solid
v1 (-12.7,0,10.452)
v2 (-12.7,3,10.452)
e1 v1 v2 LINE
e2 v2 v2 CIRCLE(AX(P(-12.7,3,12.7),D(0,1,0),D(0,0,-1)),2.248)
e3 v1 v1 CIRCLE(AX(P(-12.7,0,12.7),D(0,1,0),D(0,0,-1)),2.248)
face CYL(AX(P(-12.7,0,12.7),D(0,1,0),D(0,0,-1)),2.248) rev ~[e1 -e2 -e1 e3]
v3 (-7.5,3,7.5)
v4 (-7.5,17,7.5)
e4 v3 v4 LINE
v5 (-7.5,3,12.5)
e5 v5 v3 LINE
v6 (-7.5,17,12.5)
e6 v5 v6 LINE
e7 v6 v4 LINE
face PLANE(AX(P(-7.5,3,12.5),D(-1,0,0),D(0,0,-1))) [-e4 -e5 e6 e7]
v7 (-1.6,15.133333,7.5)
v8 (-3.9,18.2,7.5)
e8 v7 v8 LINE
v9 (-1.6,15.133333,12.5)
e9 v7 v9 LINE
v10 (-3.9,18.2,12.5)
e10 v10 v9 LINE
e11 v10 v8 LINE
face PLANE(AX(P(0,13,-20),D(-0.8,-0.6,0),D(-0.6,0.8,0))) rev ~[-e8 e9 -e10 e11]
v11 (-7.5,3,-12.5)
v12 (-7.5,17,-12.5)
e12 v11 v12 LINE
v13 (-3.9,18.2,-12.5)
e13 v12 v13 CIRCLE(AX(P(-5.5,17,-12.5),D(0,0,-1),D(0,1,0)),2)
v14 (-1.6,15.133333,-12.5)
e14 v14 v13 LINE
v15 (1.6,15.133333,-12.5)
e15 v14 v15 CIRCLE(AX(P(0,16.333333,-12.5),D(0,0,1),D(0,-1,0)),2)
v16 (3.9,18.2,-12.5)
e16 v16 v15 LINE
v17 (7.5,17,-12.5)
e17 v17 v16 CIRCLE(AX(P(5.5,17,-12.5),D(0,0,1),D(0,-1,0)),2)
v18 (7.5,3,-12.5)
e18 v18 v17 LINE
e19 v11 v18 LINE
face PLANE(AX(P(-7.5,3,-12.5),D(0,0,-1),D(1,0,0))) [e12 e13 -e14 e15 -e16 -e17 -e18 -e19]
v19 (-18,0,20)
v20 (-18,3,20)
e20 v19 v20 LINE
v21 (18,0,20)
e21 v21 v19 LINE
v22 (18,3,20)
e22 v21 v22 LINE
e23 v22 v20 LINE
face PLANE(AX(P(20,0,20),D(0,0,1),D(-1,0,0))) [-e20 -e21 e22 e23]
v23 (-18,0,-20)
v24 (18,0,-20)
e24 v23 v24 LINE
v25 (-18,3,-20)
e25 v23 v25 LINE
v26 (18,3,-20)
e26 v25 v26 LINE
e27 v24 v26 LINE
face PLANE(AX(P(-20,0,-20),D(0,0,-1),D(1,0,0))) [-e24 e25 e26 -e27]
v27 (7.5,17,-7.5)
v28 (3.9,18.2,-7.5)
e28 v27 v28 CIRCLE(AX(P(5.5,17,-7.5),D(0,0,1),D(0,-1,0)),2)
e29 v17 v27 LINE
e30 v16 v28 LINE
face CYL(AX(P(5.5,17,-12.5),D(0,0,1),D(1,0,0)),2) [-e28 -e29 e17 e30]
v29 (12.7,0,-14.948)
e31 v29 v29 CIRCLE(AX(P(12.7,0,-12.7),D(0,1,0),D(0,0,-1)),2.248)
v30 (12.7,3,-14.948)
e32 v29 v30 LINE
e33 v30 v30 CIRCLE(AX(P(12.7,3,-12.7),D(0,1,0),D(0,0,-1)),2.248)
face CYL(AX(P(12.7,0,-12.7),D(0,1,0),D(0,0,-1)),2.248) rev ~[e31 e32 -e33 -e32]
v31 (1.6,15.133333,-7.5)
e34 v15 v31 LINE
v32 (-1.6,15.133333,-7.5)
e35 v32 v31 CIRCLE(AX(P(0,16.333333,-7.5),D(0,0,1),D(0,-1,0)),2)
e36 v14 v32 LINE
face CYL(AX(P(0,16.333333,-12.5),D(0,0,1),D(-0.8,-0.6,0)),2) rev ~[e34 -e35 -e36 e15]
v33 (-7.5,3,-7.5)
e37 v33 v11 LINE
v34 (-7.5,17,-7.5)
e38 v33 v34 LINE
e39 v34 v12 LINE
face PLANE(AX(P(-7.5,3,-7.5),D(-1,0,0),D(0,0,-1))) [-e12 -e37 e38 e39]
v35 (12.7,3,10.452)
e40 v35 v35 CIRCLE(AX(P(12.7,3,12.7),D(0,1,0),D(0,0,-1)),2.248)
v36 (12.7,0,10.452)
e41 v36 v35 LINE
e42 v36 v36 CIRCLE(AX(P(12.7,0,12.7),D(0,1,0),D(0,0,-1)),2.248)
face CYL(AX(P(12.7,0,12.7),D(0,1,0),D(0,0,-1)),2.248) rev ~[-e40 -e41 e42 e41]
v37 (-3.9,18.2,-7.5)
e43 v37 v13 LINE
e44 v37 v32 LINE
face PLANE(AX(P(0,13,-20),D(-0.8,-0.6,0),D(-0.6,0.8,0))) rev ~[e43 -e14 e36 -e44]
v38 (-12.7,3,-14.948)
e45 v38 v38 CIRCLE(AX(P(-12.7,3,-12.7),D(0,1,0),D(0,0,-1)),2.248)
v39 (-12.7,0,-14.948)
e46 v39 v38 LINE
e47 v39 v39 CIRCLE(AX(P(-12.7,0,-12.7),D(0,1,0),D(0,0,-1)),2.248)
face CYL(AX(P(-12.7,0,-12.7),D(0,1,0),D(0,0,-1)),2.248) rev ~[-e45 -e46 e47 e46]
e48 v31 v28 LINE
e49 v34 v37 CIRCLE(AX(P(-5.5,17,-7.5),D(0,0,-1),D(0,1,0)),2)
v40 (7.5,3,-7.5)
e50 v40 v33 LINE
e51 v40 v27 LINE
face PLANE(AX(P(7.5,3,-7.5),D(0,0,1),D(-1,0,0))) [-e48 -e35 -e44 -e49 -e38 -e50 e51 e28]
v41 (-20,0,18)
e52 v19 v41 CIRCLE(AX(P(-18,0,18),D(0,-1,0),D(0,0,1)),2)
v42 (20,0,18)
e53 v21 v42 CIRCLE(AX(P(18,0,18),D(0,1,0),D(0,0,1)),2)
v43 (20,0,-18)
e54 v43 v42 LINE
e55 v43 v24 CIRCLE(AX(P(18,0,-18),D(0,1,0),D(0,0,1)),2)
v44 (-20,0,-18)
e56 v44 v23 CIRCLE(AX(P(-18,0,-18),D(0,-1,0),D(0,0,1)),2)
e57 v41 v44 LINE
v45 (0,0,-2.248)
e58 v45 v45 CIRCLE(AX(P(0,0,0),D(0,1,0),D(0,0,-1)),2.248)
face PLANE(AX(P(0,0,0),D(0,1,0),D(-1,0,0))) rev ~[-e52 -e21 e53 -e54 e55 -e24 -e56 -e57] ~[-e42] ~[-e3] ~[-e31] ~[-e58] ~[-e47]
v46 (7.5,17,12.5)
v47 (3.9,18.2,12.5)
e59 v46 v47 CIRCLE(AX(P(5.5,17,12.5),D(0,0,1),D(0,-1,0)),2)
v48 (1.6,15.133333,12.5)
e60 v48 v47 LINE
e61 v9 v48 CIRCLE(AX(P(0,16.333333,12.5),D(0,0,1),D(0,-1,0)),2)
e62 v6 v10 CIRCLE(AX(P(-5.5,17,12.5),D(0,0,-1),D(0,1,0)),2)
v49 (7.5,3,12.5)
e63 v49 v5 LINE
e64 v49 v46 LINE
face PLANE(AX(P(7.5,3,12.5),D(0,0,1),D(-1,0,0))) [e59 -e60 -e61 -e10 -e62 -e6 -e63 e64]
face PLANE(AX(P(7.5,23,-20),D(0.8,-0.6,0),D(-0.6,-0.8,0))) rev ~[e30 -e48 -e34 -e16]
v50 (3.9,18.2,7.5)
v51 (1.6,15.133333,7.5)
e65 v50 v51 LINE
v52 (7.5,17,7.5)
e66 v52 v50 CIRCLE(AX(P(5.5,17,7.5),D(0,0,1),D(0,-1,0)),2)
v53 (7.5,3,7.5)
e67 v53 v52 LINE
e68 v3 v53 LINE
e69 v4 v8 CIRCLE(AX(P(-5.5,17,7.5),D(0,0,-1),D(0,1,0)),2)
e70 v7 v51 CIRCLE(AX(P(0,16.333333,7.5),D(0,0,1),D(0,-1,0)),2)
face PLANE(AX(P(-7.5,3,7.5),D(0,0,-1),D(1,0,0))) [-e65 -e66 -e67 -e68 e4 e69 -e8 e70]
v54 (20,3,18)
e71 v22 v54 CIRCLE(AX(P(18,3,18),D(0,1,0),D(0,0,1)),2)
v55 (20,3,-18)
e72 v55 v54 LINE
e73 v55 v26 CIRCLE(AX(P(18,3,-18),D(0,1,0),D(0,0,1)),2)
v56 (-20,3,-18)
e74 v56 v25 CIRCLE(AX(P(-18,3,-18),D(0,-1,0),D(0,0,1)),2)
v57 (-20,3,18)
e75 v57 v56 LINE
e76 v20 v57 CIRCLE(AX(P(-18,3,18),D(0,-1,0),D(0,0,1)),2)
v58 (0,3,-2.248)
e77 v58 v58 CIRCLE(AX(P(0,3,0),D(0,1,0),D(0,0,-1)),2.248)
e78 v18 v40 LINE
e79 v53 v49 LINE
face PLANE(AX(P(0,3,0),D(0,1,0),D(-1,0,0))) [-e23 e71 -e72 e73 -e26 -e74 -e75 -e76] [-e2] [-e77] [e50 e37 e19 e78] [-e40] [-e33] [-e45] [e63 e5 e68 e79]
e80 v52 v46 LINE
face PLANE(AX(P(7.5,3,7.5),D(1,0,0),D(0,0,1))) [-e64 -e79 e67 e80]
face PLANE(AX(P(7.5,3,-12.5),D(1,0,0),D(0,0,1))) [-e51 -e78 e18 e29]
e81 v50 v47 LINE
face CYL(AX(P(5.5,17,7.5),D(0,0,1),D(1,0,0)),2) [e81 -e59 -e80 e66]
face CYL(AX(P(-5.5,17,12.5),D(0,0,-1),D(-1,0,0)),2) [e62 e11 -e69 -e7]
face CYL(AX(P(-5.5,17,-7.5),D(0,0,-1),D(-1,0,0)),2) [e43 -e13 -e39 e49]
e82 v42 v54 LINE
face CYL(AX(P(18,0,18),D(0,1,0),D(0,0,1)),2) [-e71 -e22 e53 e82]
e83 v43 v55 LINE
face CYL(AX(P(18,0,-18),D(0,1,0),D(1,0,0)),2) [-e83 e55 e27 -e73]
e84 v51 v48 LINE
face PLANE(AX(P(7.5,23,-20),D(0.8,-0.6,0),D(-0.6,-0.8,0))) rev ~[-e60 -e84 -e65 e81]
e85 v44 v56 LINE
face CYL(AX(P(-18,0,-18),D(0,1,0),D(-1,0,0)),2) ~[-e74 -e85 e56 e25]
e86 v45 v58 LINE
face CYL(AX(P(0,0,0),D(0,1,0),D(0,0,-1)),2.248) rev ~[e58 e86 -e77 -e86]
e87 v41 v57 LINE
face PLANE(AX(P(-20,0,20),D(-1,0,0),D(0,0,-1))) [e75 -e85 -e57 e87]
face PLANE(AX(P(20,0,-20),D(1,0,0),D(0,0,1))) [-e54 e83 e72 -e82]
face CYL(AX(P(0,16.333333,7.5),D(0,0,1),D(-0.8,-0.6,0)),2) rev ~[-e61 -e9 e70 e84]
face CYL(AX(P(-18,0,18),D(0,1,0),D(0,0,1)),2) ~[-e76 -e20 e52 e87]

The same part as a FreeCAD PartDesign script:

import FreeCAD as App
import Part
import Sketcher
Q = App.Units.Quantity


def edges_at(feature, points):
    """Names of the edges that pass closest to the given points."""
    edges = feature.Shape.Edges
    near = lambda p: min(range(len(edges)), key=lambda i: edges[i].distToShape(Part.Vertex(*p))[0])
    return sorted({f"Edge{near(p) + 1}" for p in points})

doc = App.newDocument("Part")
body = doc.addObject("PartDesign::Body", "Body")

sketch1 = body.newObject("Sketcher::SketchObject", "Sketch")
sketch1.AttachmentSupport = (doc.getObject("XZ_Plane"), [""])
sketch1.MapMode = "FlatFace"
sketch1.addGeometry([
    Part.LineSegment(App.Vector(-20, 20, 0), App.Vector(20, 20, 0)),
    Part.LineSegment(App.Vector(20, 20, 0), App.Vector(20, -20, 0)),
    Part.LineSegment(App.Vector(20, -20, 0), App.Vector(-20, -20, 0)),
    Part.LineSegment(App.Vector(-20, -20, 0), App.Vector(-20, 20, 0)),
], False)
sketch1.addConstraint([
    Sketcher.Constraint("Coincident", 0, 2, 1, 1),
    Sketcher.Constraint("Coincident", 1, 2, 2, 1),
    Sketcher.Constraint("Coincident", 2, 2, 3, 1),
    Sketcher.Constraint("Coincident", 3, 2, 0, 1),
    Sketcher.Constraint("Horizontal", 0),
    Sketcher.Constraint("Vertical", 1),
    Sketcher.Constraint("Horizontal", 2),
    Sketcher.Constraint("Vertical", 3),
    Sketcher.Constraint("Symmetric", 0, 2, 2, 2, -1, 1),
    Sketcher.Constraint("Equal", 2, 1),
    Sketcher.Constraint("DistanceX", 0, 1, 0, 2, Q("40 mm")),
])
pad1 = body.newObject("PartDesign::Pad", "Pad")
pad1.Profile = sketch1
pad1.Length = 3
pad1.Reversed = True

sketch2 = body.newObject("Sketcher::SketchObject", "Sketch001")
sketch2.AttachmentSupport = (doc.getObject("XZ_Plane"), [""])
sketch2.MapMode = "FlatFace"
sketch2.AttachmentOffset = App.Placement(App.Vector(0, 0, -3), App.Rotation())
sketch2.addGeometry([
    Part.LineSegment(App.Vector(8, -12, 0), App.Vector(-8, -12, 0)),
    Part.LineSegment(App.Vector(-8, -12, 0), App.Vector(-8, -8, 0)),
    Part.LineSegment(App.Vector(-8, -8, 0), App.Vector(8, -8, 0)),
    Part.LineSegment(App.Vector(8, -8, 0), App.Vector(8, -12, 0)),
    Part.LineSegment(App.Vector(8, 8, 0), App.Vector(-8, 8, 0)),
    Part.LineSegment(App.Vector(-8, 8, 0), App.Vector(-8, 12, 0)),
    Part.LineSegment(App.Vector(-8, 12, 0), App.Vector(8, 12, 0)),
    Part.LineSegment(App.Vector(8, 12, 0), App.Vector(8, 8, 0)),
], False)
sketch2.addConstraint([
    Sketcher.Constraint("Coincident", 0, 2, 1, 1),
    Sketcher.Constraint("Coincident", 1, 2, 2, 1),
    Sketcher.Constraint("Coincident", 2, 2, 3, 1),
    Sketcher.Constraint("Coincident", 3, 2, 0, 1),
    Sketcher.Constraint("Coincident", 4, 2, 5, 1),
    Sketcher.Constraint("Coincident", 5, 2, 6, 1),
    Sketcher.Constraint("Coincident", 6, 2, 7, 1),
    Sketcher.Constraint("Coincident", 7, 2, 4, 1),
    Sketcher.Constraint("Horizontal", 0),
    Sketcher.Constraint("Vertical", 1),
    Sketcher.Constraint("Horizontal", 2),
    Sketcher.Constraint("Vertical", 3),
    Sketcher.Constraint("Horizontal", 4),
    Sketcher.Constraint("Vertical", 5),
    Sketcher.Constraint("Horizontal", 6),
    Sketcher.Constraint("Vertical", 7),
    Sketcher.Constraint("Symmetric", 2, 2, 4, 2, -1, 1),
    Sketcher.Constraint("Symmetric", 0, 2, 6, 2, -1, 1),
    Sketcher.Constraint("Vertical", 1, 2, 4, 2),
    Sketcher.Constraint("DistanceX", 0, 2, 0, 1, Q("15 mm")),
    Sketcher.Constraint("DistanceY", 1, 1, 1, 2, Q("5 mm")),
    Sketcher.Constraint("DistanceY", 1, 2, 4, 2, Q("15 mm")),
])
pad2 = body.newObject("PartDesign::Pad", "Pad001")
pad2.Profile = sketch2
pad2.Length = 20
pad2.Reversed = True

sketch3 = body.newObject("Sketcher::SketchObject", "Sketch002")
sketch3.AttachmentSupport = (doc.getObject("XY_Plane"), [""])
sketch3.MapMode = "FlatFace"
sketch3.AttachmentOffset = App.Placement(App.Vector(0, 0, -20), App.Rotation())
sketch3.addGeometry([
    Part.LineSegment(App.Vector(-8, 23, 0), App.Vector(8, 23, 0)),
    Part.LineSegment(App.Vector(8, 23, 0), App.Vector(0, 13, 0)),
    Part.LineSegment(App.Vector(0, 13, 0), App.Vector(-8, 23, 0)),
], False)
sketch3.addConstraint([
    Sketcher.Constraint("Coincident", 0, 2, 1, 1),
    Sketcher.Constraint("Coincident", 1, 2, 2, 1),
    Sketcher.Constraint("Coincident", 2, 2, 0, 1),
    Sketcher.Constraint("Horizontal", 0),
    Sketcher.Constraint("PointOnObject", 1, 2, -2),
    Sketcher.Constraint("Equal", 1, 2),
    Sketcher.Constraint("DistanceY", 1, 2, 0, 2, Q("10 mm")),
    Sketcher.Constraint("DistanceX", 0, 1, 0, 2, Q("15 mm")),
    Sketcher.Constraint("DistanceY", -1, 1, 0, 2, Q("23 mm")),
])
pocket1 = body.newObject("PartDesign::Pocket", "Pocket")
pocket1.Profile = sketch3
pocket1.Type = "ThroughAll"
pocket1.Reversed = True
doc.recompute()

fillet = body.newObject("PartDesign::Fillet", "Fillet")
fillet.Base = (pocket1, edges_at(pocket1, [
    (0, 13, 10),
    (0, 13, -10),
    (-7.5, 23, -10),
    (-7.5, 23, 10),
    (7.5, 23, 10),
    (7.5, 23, -10),
    (20, 1.5, 20),
    (20, 1.5, -20),
    (-20, 1.5, -20),
    (-20, 1.5, 20),
]))
fillet.Radius = 2

sketch4 = body.newObject("Sketcher::SketchObject", "Sketch003")
sketch4.AttachmentSupport = (doc.getObject("XZ_Plane"), [""])
sketch4.MapMode = "FlatFace"
sketch4.addGeometry([
    Part.Circle(App.Vector(12.7, -12.7, 0), App.Vector(0, 0, 1), 2.2),
    Part.Circle(App.Vector(-12.7, -12.7, 0), App.Vector(0, 0, 1), 2.2),
    Part.Circle(App.Vector(12.7, 12.7, 0), App.Vector(0, 0, 1), 2.2),
    Part.Circle(App.Vector(-12.7, 12.7, 0), App.Vector(0, 0, 1), 2.2),
    Part.Circle(App.Vector(0, 0, 0), App.Vector(0, 0, 1), 2.2),
], False)
sketch4.addConstraint([
    Sketcher.Constraint("Coincident", 4, 3, -1, 1),
    Sketcher.Constraint("Equal", 0, 1),
    Sketcher.Constraint("Equal", 1, 2),
    Sketcher.Constraint("Equal", 2, 3),
    Sketcher.Constraint("Equal", 3, 4),
    Sketcher.Constraint("Symmetric", 1, 3, 2, 3, -1, 1),
    Sketcher.Constraint("Symmetric", 0, 3, 3, 3, -1, 1),
    Sketcher.Constraint("Symmetric", 0, 3, 1, 3, -2),
    Sketcher.Constraint("Diameter", 0, Q("4.496 mm")),
    Sketcher.Constraint("DistanceX", -1, 1, 0, 3, Q("12.7 mm")),
    Sketcher.Constraint("DistanceY", 0, 3, -1, 1, Q("12.7 mm")),
])
doc.recompute()
hole = body.newObject("PartDesign::Hole", "Hole")
hole.Profile = sketch4
hole.ThreadType = "None"
hole.Diameter = 4.496
hole.DepthType = "ThroughAll"

doc.recompute()
